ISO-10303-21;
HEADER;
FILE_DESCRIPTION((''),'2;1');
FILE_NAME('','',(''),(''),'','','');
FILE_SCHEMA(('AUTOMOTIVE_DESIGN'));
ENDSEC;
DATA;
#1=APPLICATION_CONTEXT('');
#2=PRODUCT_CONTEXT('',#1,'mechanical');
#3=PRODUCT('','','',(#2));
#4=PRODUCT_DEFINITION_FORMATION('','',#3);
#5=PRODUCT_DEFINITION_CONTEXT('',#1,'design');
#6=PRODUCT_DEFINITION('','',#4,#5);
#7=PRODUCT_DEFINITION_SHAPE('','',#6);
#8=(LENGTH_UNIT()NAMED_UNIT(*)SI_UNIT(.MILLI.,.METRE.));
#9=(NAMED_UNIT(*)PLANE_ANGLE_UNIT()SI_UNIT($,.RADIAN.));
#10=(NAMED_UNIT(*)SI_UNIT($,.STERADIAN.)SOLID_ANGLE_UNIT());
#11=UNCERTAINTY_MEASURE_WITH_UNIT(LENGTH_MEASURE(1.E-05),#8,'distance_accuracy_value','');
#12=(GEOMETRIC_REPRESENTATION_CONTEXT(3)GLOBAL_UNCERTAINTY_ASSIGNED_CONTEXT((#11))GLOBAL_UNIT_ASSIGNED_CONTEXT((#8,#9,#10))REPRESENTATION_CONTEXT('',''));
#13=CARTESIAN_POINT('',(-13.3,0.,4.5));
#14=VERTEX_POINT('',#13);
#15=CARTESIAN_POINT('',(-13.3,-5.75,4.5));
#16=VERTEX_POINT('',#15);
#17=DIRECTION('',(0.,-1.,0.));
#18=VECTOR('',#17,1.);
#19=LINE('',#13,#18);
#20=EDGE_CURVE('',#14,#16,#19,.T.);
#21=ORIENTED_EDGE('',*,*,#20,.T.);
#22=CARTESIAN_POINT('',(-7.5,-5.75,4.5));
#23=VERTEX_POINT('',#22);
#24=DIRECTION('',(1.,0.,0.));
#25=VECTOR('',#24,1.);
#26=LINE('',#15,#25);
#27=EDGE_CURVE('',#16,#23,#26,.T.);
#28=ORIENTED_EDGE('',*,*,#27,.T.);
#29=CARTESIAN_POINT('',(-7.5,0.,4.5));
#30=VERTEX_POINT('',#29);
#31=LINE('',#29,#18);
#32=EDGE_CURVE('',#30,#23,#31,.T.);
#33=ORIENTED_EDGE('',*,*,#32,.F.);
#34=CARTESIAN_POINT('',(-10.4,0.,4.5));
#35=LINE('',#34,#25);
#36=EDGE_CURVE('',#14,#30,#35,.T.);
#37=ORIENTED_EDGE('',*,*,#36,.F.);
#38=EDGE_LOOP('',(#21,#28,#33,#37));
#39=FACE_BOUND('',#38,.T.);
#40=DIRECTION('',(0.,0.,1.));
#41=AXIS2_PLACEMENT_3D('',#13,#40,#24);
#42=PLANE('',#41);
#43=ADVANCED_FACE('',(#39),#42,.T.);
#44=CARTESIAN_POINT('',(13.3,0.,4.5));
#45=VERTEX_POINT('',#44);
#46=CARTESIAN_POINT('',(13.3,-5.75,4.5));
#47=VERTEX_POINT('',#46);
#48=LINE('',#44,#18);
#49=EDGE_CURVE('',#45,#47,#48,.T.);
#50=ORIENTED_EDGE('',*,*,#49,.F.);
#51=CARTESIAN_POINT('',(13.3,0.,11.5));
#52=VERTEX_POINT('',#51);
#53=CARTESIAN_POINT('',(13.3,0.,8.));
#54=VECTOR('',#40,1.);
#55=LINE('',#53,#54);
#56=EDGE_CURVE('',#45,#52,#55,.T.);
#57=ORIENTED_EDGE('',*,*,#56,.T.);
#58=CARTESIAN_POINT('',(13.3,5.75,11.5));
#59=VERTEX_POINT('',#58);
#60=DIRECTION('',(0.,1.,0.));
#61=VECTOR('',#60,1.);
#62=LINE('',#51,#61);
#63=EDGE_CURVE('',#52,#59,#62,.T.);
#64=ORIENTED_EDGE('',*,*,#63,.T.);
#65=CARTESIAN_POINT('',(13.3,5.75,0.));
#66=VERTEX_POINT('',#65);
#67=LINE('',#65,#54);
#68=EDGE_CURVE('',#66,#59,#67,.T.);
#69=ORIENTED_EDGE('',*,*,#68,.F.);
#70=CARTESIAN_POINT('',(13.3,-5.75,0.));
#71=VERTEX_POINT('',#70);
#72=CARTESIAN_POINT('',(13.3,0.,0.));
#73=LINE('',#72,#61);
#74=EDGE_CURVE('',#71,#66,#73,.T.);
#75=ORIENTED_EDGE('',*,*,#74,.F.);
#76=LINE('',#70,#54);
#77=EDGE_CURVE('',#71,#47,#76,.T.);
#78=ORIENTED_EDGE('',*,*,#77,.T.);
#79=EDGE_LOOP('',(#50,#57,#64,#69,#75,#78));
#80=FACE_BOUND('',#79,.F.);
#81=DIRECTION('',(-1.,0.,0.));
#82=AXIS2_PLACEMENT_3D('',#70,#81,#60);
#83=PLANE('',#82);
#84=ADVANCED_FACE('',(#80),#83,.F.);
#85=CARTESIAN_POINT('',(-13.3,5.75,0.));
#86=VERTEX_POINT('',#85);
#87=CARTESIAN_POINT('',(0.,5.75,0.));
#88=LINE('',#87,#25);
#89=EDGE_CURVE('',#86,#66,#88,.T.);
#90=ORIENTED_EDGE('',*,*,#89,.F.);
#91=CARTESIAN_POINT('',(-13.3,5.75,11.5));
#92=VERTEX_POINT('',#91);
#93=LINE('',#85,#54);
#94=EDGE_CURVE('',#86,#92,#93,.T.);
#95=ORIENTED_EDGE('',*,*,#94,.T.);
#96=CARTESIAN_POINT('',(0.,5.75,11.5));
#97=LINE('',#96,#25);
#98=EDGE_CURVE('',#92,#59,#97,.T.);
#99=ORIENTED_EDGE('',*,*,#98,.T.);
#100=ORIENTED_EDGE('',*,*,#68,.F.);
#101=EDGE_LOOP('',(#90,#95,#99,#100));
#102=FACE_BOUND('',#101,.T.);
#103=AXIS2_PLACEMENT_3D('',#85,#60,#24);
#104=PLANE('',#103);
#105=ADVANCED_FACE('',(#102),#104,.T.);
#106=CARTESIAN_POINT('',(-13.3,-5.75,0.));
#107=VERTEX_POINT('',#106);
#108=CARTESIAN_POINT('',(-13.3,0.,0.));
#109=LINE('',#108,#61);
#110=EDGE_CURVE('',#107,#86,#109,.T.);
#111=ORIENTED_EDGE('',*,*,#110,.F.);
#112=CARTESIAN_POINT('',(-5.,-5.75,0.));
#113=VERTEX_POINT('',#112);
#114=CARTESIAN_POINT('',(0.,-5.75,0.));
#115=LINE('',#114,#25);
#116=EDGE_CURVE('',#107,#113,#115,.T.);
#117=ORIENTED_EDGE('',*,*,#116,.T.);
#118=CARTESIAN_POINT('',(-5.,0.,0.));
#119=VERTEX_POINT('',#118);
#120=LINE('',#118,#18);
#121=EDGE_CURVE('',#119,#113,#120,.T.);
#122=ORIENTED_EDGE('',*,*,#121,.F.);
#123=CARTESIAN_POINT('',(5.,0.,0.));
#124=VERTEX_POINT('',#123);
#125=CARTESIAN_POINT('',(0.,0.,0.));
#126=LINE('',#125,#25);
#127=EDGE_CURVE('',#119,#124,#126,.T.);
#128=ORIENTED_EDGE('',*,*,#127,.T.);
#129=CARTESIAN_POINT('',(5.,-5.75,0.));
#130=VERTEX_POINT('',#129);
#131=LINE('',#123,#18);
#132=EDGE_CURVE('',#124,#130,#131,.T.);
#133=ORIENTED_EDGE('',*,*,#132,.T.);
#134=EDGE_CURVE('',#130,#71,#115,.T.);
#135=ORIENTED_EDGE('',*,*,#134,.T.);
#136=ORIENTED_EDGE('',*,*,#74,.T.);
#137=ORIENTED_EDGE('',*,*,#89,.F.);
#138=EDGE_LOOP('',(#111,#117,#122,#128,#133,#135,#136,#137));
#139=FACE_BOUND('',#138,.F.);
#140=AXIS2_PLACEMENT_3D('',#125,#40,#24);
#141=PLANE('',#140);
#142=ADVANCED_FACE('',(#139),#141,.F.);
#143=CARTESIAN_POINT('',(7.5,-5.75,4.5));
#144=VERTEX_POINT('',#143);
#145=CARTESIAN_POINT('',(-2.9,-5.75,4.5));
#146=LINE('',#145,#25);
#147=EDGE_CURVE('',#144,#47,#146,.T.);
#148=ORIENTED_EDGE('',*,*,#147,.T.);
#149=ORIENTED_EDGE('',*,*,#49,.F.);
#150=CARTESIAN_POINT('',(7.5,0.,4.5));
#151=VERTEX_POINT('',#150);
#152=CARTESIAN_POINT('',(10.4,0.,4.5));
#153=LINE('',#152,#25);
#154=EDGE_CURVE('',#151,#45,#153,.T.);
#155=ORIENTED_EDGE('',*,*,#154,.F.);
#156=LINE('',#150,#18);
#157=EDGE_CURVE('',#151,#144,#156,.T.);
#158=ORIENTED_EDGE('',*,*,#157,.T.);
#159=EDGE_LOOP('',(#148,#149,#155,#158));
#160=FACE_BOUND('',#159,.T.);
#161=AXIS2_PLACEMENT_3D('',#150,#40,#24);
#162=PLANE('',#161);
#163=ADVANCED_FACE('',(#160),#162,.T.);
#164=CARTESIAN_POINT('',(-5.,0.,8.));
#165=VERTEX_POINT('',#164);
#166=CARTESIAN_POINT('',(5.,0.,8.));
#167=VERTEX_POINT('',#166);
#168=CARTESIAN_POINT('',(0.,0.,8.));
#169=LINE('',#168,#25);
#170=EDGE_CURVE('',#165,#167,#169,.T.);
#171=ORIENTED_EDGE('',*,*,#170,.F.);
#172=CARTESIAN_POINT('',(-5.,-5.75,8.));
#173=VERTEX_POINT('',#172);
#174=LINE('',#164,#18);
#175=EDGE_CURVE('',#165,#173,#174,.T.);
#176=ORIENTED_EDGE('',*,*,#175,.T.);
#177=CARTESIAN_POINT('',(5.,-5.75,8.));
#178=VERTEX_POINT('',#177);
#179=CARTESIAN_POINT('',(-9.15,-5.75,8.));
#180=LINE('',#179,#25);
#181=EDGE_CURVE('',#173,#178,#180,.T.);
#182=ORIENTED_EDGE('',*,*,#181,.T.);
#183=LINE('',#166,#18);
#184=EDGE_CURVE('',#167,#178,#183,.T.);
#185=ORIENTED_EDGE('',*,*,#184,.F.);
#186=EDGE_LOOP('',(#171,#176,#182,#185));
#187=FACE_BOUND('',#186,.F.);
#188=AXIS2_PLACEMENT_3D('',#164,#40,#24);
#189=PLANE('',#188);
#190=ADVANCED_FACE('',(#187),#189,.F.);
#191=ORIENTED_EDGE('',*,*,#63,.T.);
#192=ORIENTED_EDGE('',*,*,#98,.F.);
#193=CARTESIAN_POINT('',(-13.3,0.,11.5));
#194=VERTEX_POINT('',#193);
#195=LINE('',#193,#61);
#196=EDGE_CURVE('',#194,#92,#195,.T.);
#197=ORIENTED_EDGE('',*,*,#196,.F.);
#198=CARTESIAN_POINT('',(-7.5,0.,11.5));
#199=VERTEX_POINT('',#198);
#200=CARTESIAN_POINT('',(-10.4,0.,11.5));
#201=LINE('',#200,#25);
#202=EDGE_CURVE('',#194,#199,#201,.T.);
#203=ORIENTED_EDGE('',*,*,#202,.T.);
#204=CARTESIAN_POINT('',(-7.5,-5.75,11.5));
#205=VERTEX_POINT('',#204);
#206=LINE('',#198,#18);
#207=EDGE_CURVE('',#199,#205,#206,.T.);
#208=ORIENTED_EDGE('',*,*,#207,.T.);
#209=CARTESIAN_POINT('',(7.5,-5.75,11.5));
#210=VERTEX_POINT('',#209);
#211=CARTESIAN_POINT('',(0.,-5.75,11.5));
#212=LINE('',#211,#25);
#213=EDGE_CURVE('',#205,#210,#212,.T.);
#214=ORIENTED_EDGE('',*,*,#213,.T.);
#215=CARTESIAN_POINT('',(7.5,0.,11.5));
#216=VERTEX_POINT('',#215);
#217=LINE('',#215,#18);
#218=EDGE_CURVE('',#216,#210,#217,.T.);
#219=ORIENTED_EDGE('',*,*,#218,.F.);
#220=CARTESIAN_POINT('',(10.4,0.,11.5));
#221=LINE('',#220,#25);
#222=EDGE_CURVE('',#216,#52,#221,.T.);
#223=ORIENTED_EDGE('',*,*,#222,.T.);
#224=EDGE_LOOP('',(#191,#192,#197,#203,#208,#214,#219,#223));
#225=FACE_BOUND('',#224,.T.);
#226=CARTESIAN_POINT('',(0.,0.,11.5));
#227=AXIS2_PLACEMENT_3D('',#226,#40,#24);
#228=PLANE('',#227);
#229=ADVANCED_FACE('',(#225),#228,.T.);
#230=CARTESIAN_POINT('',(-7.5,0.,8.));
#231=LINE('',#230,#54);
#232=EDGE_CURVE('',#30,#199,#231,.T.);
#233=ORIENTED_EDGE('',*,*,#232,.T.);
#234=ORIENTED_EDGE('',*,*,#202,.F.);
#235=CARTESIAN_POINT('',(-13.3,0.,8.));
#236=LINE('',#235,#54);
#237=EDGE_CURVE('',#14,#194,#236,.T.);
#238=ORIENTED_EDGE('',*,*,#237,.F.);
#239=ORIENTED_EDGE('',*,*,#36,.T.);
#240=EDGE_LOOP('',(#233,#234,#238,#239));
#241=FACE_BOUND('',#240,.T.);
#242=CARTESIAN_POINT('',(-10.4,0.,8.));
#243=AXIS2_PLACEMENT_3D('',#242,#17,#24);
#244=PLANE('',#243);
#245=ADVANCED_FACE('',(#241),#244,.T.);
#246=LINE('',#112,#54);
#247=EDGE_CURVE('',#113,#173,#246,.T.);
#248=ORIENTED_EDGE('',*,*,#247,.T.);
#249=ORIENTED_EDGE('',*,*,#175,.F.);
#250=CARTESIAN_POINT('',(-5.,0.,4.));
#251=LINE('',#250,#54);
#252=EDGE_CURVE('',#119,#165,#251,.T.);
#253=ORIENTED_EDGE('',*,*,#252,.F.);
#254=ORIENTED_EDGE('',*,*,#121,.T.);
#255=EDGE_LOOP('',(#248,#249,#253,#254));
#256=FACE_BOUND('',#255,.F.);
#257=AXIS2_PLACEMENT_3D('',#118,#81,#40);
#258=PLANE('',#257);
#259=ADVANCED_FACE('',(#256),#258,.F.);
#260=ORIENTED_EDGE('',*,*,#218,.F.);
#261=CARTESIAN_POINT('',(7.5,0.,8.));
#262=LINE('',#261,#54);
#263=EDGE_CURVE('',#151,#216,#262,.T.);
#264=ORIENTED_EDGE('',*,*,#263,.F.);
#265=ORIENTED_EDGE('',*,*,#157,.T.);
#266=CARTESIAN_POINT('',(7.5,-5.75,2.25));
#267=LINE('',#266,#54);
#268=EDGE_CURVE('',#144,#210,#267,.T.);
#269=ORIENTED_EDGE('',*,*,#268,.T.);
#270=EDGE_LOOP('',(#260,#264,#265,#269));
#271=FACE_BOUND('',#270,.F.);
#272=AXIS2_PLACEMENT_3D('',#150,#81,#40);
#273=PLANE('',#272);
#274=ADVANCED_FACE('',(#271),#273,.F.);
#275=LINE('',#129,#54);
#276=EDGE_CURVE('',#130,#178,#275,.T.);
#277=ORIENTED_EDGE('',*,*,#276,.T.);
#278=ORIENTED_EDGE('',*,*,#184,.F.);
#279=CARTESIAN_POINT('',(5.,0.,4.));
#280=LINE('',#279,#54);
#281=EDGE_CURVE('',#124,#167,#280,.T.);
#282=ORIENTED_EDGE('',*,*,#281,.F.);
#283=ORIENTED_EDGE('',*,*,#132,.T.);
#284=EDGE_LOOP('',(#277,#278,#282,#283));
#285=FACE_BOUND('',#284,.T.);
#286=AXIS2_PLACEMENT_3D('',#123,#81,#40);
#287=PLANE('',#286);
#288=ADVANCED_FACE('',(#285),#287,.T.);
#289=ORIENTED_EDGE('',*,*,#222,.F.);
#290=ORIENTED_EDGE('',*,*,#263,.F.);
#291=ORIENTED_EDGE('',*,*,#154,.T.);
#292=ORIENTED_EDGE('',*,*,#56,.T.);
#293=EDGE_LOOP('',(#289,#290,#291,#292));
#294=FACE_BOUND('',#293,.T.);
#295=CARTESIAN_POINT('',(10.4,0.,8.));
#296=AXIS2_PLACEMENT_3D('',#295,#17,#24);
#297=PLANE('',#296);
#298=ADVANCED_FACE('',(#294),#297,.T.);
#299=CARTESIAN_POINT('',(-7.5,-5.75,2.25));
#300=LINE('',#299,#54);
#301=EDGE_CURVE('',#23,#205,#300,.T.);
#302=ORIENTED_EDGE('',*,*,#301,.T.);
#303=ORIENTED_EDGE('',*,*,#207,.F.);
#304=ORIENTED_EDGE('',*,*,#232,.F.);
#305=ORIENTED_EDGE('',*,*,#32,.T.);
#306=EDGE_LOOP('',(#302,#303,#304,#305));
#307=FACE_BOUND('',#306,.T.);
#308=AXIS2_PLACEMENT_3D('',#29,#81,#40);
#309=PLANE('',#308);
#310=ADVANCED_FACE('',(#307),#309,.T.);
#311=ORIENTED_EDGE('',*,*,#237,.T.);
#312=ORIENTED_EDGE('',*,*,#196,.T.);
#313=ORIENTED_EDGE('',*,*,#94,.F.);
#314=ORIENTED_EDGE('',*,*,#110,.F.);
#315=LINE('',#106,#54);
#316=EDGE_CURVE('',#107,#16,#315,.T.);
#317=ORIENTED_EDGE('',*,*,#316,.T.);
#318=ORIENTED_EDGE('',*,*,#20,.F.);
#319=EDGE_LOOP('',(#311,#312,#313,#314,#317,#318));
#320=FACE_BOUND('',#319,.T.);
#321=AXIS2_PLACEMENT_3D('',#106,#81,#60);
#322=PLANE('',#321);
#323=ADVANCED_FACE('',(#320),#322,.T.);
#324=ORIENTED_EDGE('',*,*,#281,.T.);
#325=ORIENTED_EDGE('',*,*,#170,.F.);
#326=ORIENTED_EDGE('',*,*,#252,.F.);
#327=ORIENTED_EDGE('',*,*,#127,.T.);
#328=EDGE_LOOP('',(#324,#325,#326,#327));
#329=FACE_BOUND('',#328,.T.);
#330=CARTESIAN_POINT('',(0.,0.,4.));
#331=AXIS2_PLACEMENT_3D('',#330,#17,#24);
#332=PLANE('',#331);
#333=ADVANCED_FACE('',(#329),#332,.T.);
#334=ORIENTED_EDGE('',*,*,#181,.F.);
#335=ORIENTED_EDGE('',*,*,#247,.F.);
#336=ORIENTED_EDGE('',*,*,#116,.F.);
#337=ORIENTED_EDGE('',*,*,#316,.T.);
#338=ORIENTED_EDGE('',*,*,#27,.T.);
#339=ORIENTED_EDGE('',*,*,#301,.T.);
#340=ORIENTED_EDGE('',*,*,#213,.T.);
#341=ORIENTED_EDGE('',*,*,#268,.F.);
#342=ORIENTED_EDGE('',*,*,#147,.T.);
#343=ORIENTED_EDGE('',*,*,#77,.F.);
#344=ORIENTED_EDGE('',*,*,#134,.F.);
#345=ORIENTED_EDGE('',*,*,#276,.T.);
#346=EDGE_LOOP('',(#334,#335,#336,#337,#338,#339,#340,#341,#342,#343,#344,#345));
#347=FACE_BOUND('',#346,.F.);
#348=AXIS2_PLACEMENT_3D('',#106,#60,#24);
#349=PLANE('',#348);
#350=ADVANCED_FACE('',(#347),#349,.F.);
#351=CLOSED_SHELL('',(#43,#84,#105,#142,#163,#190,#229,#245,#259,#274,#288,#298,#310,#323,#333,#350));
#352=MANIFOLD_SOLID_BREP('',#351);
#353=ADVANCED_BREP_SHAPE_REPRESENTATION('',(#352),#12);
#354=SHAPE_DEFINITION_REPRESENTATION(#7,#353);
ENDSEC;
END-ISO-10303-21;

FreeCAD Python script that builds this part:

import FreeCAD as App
import Part
import Sketcher
from FreeCAD import Vector


def add_polygon(sketch, points):
    """Adds a closed chain of lines whose ends are joined by coincident constraints."""
    first, n = sketch.GeometryCount, len(points)
    for a, b in zip(points, points[1:] + points[:1]):
        sketch.addGeometry(Part.LineSegment(App.Vector(*a, 0), App.Vector(*b, 0)), False)
    for i in range(n):
        sketch.addConstraint(Sketcher.Constraint("Coincident", first + i, 2, first + (i + 1) % n, 1))

doc = App.newDocument("Part")
body = doc.addObject("PartDesign::Body", "Body")

# Sketch on XY plane
sketch1 = doc.addObject("Sketcher::SketchObject", "Sketch")
body.addObject(sketch1)
sketch1.AttachmentSupport = (doc.XY_Plane, [""])
sketch1.MapMode = "FlatFace"
add_polygon(sketch1, [(-13.3, 5.75), (-13.3, -5.75), (13.3, -5.75), (13.3, 5.75)])  # lines 0-3
sketch1.addConstraint([
    Sketcher.Constraint("Vertical", 0),
    Sketcher.Constraint("Horizontal", 1),
    Sketcher.Constraint("Vertical", 2),
    Sketcher.Constraint("Horizontal", 3),
    Sketcher.Constraint("Symmetric", 0, 2, 2, 2, -1, 1),
    Sketcher.Constraint("DistanceX", 1, 1, 1, 2, 26.6),
    Sketcher.Constraint("DistanceY", 0, 2, 0, 1, 11.5),
])
pad1 = doc.addObject("PartDesign::Pad", "Pad")
body.addObject(pad1)
pad1.Profile = sketch1
pad1.Length = 11.5

# Sketch on XZ plane
sketch2 = doc.addObject("Sketcher::SketchObject", "Sketch001")
body.addObject(sketch2)
sketch2.AttachmentSupport = (doc.XZ_Plane, [""])
sketch2.MapMode = "FlatFace"
add_polygon(sketch2, [(-13.3, 11.5), (-13.3, 4.5), (-7.5, 4.5), (-7.5, 11.5)])  # lines 0-3
add_polygon(sketch2, [(7.5, 11.5), (7.5, 4.5), (13.3, 4.5), (13.3, 11.5)])  # lines 4-7
add_polygon(sketch2, [(-5, 8), (-5, 0), (5, 0), (5, 8)])  # lines 8-11
sketch2.addConstraint([
    Sketcher.Constraint("Vertical", 0),
    Sketcher.Constraint("Horizontal", 1),
    Sketcher.Constraint("Vertical", 2),
    Sketcher.Constraint("Horizontal", 3),
    Sketcher.Constraint("Vertical", 4),
    Sketcher.Constraint("Horizontal", 5),
    Sketcher.Constraint("Vertical", 6),
    Sketcher.Constraint("Horizontal", 7),
    Sketcher.Constraint("Vertical", 8),
    Sketcher.Constraint("Horizontal", 9),
    Sketcher.Constraint("Vertical", 10),
    Sketcher.Constraint("Horizontal", 11),
    Sketcher.Constraint("Symmetric", 8, 2, 9, 2, -1, 1),
    Sketcher.Constraint("Symmetric", 1, 2, 4, 2, -2),
    Sketcher.Constraint("Symmetric", 3, 2, 6, 2, -2),
    Sketcher.Constraint("DistanceX", 9, 1, 9, 2, 10.0),
    Sketcher.Constraint("DistanceY", 0, 2, 0, 1, 7.0),
    Sketcher.Constraint("DistanceY", 8, 2, 8, 1, 8.0),
    Sketcher.Constraint("DistanceX", 1, 1, 1, 2, 5.8),
    Sketcher.Constraint("DistanceX", 1, 2, 4, 2, 15.0),
    Sketcher.Constraint("DistanceY", -1, 1, 0, 2, 4.5),
])
pocket1 = doc.addObject("PartDesign::Pocket", "Pocket")
body.addObject(pocket1)
pocket1.Profile = sketch2
pocket1.Type = "ThroughAll"
pocket1.Reversed = True

doc.recompute()
